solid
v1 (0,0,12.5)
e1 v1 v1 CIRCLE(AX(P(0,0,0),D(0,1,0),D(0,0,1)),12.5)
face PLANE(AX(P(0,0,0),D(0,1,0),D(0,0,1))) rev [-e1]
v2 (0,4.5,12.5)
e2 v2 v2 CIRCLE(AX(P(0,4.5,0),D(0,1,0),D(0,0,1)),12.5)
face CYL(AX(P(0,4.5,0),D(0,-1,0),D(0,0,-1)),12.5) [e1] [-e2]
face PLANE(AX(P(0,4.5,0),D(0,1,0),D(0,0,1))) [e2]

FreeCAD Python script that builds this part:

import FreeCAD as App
import Part
import Sketcher
from FreeCAD import Vector
Q = App.Units.Quantity

doc = App.newDocument("Part")
body = doc.addObject("PartDesign::Body", "Body")

sketch1 = doc.addObject("Sketcher::SketchObject", "Sketch")
body.addObject(sketch1)
sketch1.AttachmentSupport = (doc.XZ_Plane, [""])
sketch1.MapMode = "FlatFace"
sketch1.addGeometry(Part.Circle(Vector(0, 0, 0), Vector(0, 0, 1), 12), False)
sketch1.addConstraint(Sketcher.Constraint("Coincident", 0, 3, -1, 1))
sketch1.addConstraint(Sketcher.Constraint("Diameter", 0, Q("25 mm")))
pad1 = doc.addObject("PartDesign::Pad", "Pad")
body.addObject(pad1)
pad1.Profile = sketch1
pad1.Length = 4.5
pad1.Reversed = True

doc.recompute()
